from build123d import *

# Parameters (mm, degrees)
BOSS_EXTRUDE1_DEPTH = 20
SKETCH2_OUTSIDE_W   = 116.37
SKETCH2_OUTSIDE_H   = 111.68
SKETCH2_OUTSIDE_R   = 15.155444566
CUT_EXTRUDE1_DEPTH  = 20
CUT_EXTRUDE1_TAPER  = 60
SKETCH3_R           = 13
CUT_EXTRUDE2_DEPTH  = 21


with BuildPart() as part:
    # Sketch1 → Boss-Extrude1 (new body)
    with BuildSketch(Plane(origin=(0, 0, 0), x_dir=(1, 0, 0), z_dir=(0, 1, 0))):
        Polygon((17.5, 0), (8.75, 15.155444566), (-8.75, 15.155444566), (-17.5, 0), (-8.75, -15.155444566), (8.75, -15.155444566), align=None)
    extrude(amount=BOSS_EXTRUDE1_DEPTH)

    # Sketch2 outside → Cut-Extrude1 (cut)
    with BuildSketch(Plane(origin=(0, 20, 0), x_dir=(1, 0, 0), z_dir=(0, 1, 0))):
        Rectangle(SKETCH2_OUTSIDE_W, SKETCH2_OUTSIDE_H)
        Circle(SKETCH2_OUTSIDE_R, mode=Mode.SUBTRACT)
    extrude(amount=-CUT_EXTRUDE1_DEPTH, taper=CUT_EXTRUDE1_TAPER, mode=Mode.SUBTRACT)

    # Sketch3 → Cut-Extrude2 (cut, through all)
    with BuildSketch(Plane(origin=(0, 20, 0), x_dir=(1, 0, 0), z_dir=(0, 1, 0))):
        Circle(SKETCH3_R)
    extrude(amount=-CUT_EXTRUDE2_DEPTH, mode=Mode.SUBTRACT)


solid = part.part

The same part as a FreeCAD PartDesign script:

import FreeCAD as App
import Part
import Sketcher
Q = App.Units.Quantity

doc = App.newDocument("Part")
body = doc.addObject("PartDesign::Body", "Body")

# Sketch on XZ plane
sketch1 = body.newObject("Sketcher::SketchObject", "Sketch")
sketch1.AttachmentSupport = (doc.getObject("XZ_Plane"), [""])
sketch1.MapMode = "FlatFace"
sketch1.addGeometry([
    Part.LineSegment(App.Vector(18, 0, 0), App.Vector(9, -15, 0)),  # 0
    Part.LineSegment(App.Vector(9, -15, 0), App.Vector(-9, -15, 0)),  # 1
    Part.LineSegment(App.Vector(-9, -15, 0), App.Vector(-18, 0, 0)),  # 2
    Part.LineSegment(App.Vector(-18, 0, 0), App.Vector(-9, 15, 0)),  # 3
    Part.LineSegment(App.Vector(-9, 15, 0), App.Vector(9, 15, 0)),  # 4
    Part.LineSegment(App.Vector(9, 15, 0), App.Vector(18, 0, 0)),  # 5
], False)
sketch1.addConstraint([
    Sketcher.Constraint("Coincident", 0, 2, 1, 1),
    Sketcher.Constraint("Coincident", 1, 2, 2, 1),
    Sketcher.Constraint("Coincident", 2, 2, 3, 1),
    Sketcher.Constraint("Coincident", 3, 2, 4, 1),
    Sketcher.Constraint("Coincident", 4, 2, 5, 1),
    Sketcher.Constraint("Coincident", 5, 2, 0, 1),
    Sketcher.Constraint("Horizontal", 1),
    Sketcher.Constraint("Horizontal", 4),
    Sketcher.Constraint("Symmetric", 0, 2, 3, 2, -1, 1),
    Sketcher.Constraint("Symmetric", 2, 2, 5, 2, -1, 1),
    Sketcher.Constraint("PointOnObject", 2, 2, -1),
    Sketcher.Constraint("Parallel", 2, 5),
    Sketcher.Constraint("Vertical", 1, 2, 3, 2),
    Sketcher.Constraint("Angle", 0, Q("-120 deg")),
    Sketcher.Constraint("DistanceX", 1, 2, 1, 1, Q("17.5 mm")),
    Sketcher.Constraint("DistanceX", 2, 2, 5, 2, Q("35 mm")),
])
pad1 = body.newObject("PartDesign::Pad", "Pad")
pad1.Profile = sketch1
pad1.Length = 20
pad1.Reversed = True

# Sketch on XZ plane
sketch2 = body.newObject("Sketcher::SketchObject", "Sketch001")
sketch2.AttachmentSupport = (doc.getObject("XZ_Plane"), [""])
sketch2.MapMode = "FlatFace"
sketch2.AttachmentOffset = App.Placement(App.Vector(0, 0, -20), App.Rotation())
sketch2.addGeometry([
    Part.LineSegment(App.Vector(-58, -56, 0), App.Vector(-58, 56, 0)),  # 0
    Part.LineSegment(App.Vector(-58, 56, 0), App.Vector(58, 56, 0)),  # 1
    Part.LineSegment(App.Vector(58, 56, 0), App.Vector(58, -56, 0)),  # 2
    Part.LineSegment(App.Vector(58, -56, 0), App.Vector(-58, -56, 0)),  # 3
    Part.Circle(App.Vector(0, 0, 0), App.Vector(0, 0, 1), 15),  # 4
], False)
sketch2.addConstraint([
    Sketcher.Constraint("Coincident", 0, 2, 1, 1),
    Sketcher.Constraint("Coincident", 1, 2, 2, 1),
    Sketcher.Constraint("Coincident", 2, 2, 3, 1),
    Sketcher.Constraint("Coincident", 3, 2, 0, 1),
    Sketcher.Constraint("Vertical", 0),
    Sketcher.Constraint("Horizontal", 1),
    Sketcher.Constraint("Vertical", 2),
    Sketcher.Constraint("Horizontal", 3),
    Sketcher.Constraint("Coincident", 4, 3, -1, 1),
    Sketcher.Constraint("Symmetric", 0, 2, 2, 2, -1, 1),
    Sketcher.Constraint("DistanceX", 1, 1, 1, 2, Q("116.37 mm")),
    Sketcher.Constraint("DistanceY", 0, 1, 0, 2, Q("111.68 mm")),
    Sketcher.Constraint("Diameter", 4, Q("30.310889 mm")),
])
pocket1 = body.newObject("PartDesign::Pocket", "Pocket")
pocket1.Profile = sketch2
pocket1.Length = 20
pocket1.Reversed = True
pocket1.TaperAngle = 60

# Sketch on XZ plane
sketch3 = body.newObject("Sketcher::SketchObject", "Sketch002")
sketch3.AttachmentSupport = (doc.getObject("XZ_Plane"), [""])
sketch3.MapMode = "FlatFace"
sketch3.AttachmentOffset = App.Placement(App.Vector(0, 0, -20), App.Rotation())
sketch3.addGeometry(Part.Circle(App.Vector(0, 0, 0), App.Vector(0, 0, 1), 13), False)
sketch3.addConstraint([
    Sketcher.Constraint("Coincident", 0, 3, -1, 1),
    Sketcher.Constraint("Diameter", 0, Q("26 mm")),
])
pocket2 = body.newObject("PartDesign::Pocket", "Pocket001")
pocket2.Profile = sketch3
pocket2.Type = "ThroughAll"
pocket2.Reversed = True

doc.recompute()
